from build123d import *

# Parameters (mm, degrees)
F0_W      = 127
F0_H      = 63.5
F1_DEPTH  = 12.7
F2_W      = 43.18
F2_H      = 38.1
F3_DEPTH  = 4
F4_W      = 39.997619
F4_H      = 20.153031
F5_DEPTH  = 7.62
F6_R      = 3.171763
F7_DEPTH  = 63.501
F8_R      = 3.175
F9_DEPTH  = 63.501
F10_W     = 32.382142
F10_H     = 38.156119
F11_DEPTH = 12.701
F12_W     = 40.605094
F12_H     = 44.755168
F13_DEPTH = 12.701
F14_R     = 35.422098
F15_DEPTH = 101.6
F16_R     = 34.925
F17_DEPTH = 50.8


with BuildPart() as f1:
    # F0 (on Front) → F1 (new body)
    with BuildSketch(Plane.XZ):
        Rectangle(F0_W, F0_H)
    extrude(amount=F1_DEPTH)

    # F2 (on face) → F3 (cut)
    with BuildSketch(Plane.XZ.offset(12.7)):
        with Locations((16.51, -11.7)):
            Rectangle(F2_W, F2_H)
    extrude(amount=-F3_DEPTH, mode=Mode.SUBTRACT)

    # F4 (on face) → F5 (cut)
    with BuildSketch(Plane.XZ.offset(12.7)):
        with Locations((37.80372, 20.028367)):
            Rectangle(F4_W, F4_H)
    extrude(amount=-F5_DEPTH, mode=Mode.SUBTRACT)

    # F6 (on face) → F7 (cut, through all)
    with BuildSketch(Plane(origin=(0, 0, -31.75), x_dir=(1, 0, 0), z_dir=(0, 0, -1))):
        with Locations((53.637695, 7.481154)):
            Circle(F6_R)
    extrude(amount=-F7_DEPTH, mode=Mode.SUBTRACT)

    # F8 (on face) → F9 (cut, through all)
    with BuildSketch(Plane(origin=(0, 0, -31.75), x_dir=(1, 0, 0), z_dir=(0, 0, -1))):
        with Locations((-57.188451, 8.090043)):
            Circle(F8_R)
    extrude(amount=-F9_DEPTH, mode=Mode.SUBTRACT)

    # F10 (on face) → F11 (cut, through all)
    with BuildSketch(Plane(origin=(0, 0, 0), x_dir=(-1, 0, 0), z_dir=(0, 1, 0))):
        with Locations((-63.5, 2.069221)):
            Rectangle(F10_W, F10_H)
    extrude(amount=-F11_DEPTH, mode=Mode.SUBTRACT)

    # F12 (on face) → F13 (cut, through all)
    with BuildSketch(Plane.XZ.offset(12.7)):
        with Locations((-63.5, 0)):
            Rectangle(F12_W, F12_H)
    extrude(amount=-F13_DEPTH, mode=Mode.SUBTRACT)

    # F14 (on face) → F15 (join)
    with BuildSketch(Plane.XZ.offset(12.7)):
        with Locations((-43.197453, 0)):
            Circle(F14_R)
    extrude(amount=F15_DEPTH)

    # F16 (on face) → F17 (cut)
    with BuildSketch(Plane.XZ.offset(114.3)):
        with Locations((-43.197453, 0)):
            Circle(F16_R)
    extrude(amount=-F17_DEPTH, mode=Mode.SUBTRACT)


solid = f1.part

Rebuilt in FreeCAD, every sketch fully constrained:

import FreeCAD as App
import Part
import Sketcher

V = App.Vector
Q = App.Units.Quantity


def add_polygon(sketch, points):
    """Adds a closed chain of lines whose ends are joined by coincident constraints."""
    first, n = sketch.GeometryCount, len(points)
    for a, b in zip(points, points[1:] + points[:1]):
        sketch.addGeometry(Part.LineSegment(App.Vector(*a, 0), App.Vector(*b, 0)), False)
    for i in range(n):
        sketch.addConstraint(Sketcher.Constraint("Coincident", first + i, 2, first + (i + 1) % n, 1))

doc = App.newDocument("Part")
body = doc.addObject("PartDesign::Body", "Body")

# Sketch on XZ plane
sketch1 = body.newObject("Sketcher::SketchObject", "Sketch")
sketch1.AttachmentSupport = (doc.getObject("XZ_Plane"), [""])
sketch1.MapMode = "FlatFace"
add_polygon(sketch1, [(-64, 32), (-64, -32), (64, -32), (64, 32)])  # lines 0-3
sketch1.addConstraint([
    Sketcher.Constraint("Vertical", 0),
    Sketcher.Constraint("Horizontal", 1),
    Sketcher.Constraint("Vertical", 2),
    Sketcher.Constraint("Horizontal", 3),
    Sketcher.Constraint("Symmetric", 0, 2, 2, 2, -1, 1),
    Sketcher.Constraint("DistanceX", 1, 1, 1, 2, Q("5 in")),
    Sketcher.Constraint("DistanceY", 0, 2, 0, 1, Q("2.5 in")),
])
pad1 = body.newObject("PartDesign::Pad", "Pad")
pad1.Profile = sketch1
pad1.Length = Q("0.5 in")

# Sketch on XZ plane
sketch2 = body.newObject("Sketcher::SketchObject", "Sketch001")
sketch2.AttachmentSupport = (doc.getObject("XZ_Plane"), [""])
sketch2.MapMode = "FlatFace"
sketch2.AttachmentOffset = App.Placement(V(0, 0, 0.5 * 25.4), App.Rotation())
add_polygon(sketch2, [(-5, 7), (-5, -31), (38, -31), (38, 7)])  # lines 0-3
sketch2.addConstraint([
    Sketcher.Constraint("Vertical", 0),
    Sketcher.Constraint("Horizontal", 1),
    Sketcher.Constraint("Vertical", 2),
    Sketcher.Constraint("Horizontal", 3),
    Sketcher.Constraint("DistanceX", 1, 1, 1, 2, Q("1.7 in")),
    Sketcher.Constraint("DistanceY", 0, 2, 0, 1, Q("1.5 in")),
    Sketcher.Constraint("DistanceX", 0, 2, -1, 1, Q("0.2 in")),
    Sketcher.Constraint("DistanceY", 0, 2, -1, 1, 30.75),
])
pocket1 = body.newObject("PartDesign::Pocket", "Pocket")
pocket1.Profile = sketch2
pocket1.Length = 4

# Sketch on XZ plane
sketch3 = body.newObject("Sketcher::SketchObject", "Sketch002")
sketch3.AttachmentSupport = (doc.getObject("XZ_Plane"), [""])
sketch3.MapMode = "FlatFace"
sketch3.AttachmentOffset = App.Placement(V(0, 0, 0.5 * 25.4), App.Rotation())
add_polygon(sketch3, [(18, 30), (18, 10), (58, 10), (58, 30)])  # lines 0-3
sketch3.addConstraint([
    Sketcher.Constraint("Vertical", 0),
    Sketcher.Constraint("Horizontal", 1),
    Sketcher.Constraint("Vertical", 2),
    Sketcher.Constraint("Horizontal", 3),
    Sketcher.Constraint("DistanceX", 1, 1, 1, 2, 39.997619),
    Sketcher.Constraint("DistanceY", 0, 2, 0, 1, 20.153031),
    Sketcher.Constraint("DistanceX", -1, 1, 0, 2, 17.80491),
    Sketcher.Constraint("DistanceY", -1, 1, 0, 2, 9.951852),
])
pocket2 = body.newObject("PartDesign::Pocket", "Pocket001")
pocket2.Profile = sketch3
pocket2.Length = Q("0.3 in")

# Sketch on XY plane
sketch4 = body.newObject("Sketcher::SketchObject", "Sketch003")
sketch4.AttachmentSupport = (doc.getObject("XY_Plane"), [""])
sketch4.MapMode = "FlatFace"
sketch4.AttachmentOffset = App.Placement(V(0, 0, -1.25 * 25.4), App.Rotation())
sketch4.addGeometry(Part.Circle(V(53.6, -7.5, 0), V(0, 0, 1), 3.2), False)
sketch4.addConstraint([
    Sketcher.Constraint("Diameter", 0, 6.343526),
    Sketcher.Constraint("DistanceX", -1, 1, 0, 3, 53.637695),
    Sketcher.Constraint("DistanceY", 0, 3, -1, 1, 7.481154),
])
pocket3 = body.newObject("PartDesign::Pocket", "Pocket002")
pocket3.Profile = sketch4
pocket3.Type = "ThroughAll"
pocket3.Reversed = True

# Sketch on XY plane
sketch5 = body.newObject("Sketcher::SketchObject", "Sketch004")
sketch5.AttachmentSupport = (doc.getObject("XY_Plane"), [""])
sketch5.MapMode = "FlatFace"
sketch5.AttachmentOffset = App.Placement(V(0, 0, -1.25 * 25.4), App.Rotation())
sketch5.addGeometry(Part.Circle(V(-57.2, -8.1, 0), V(0, 0, 1), 3.2), False)
sketch5.addConstraint([
    Sketcher.Constraint("Diameter", 0, Q("0.25 in")),
    Sketcher.Constraint("DistanceX", 0, 3, -1, 1, 57.188451),
    Sketcher.Constraint("DistanceY", 0, 3, -1, 1, 8.090043),
])
pocket4 = body.newObject("PartDesign::Pocket", "Pocket003")
pocket4.Profile = sketch5
pocket4.Type = "ThroughAll"
pocket4.Reversed = True

# Sketch on XZ plane
sketch6 = body.newObject("Sketcher::SketchObject", "Sketch005")
sketch6.AttachmentSupport = (doc.getObject("XZ_Plane"), [""])
sketch6.MapMode = "FlatFace"
add_polygon(sketch6, [(80, 21), (80, -17), (47, -17), (47, 21)])  # lines 0-3
sketch6.addConstraint([
    Sketcher.Constraint("Vertical", 0),
    Sketcher.Constraint("Horizontal", 1),
    Sketcher.Constraint("Vertical", 2),
    Sketcher.Constraint("Horizontal", 3),
    Sketcher.Constraint("DistanceX", 1, 2, 1, 1, 32.382142),
    Sketcher.Constraint("DistanceY", 0, 2, 0, 1, 38.156119),
    Sketcher.Constraint("DistanceX", -1, 1, 0, 2, 79.691071),
    Sketcher.Constraint("DistanceY", 0, 2, -1, 1, 17.008838),
])
pocket5 = body.newObject("PartDesign::Pocket", "Pocket004")
pocket5.Profile = sketch6
pocket5.Type = "ThroughAll"
pocket5.Reversed = True

# Sketch on XZ plane
sketch7 = body.newObject("Sketcher::SketchObject", "Sketch006")
sketch7.AttachmentSupport = (doc.getObject("XZ_Plane"), [""])
sketch7.MapMode = "FlatFace"
sketch7.AttachmentOffset = App.Placement(V(0, 0, 0.5 * 25.4), App.Rotation())
add_polygon(sketch7, [(-84, 22), (-84, -22), (-43, -22), (-43, 22)])  # lines 0-3
sketch7.addConstraint([
    Sketcher.Constraint("Vertical", 0),
    Sketcher.Constraint("Horizontal", 1),
    Sketcher.Constraint("Vertical", 2),
    Sketcher.Constraint("Horizontal", 3),
    Sketcher.Constraint("DistanceX", 1, 1, 1, 2, 40.605094),
    Sketcher.Constraint("DistanceY", 0, 2, 0, 1, 44.755168),
    Sketcher.Constraint("DistanceX", 0, 2, -1, 1, 83.802547),
    Sketcher.Constraint("DistanceY", 0, 2, -1, 1, 22.377584),
])
pocket6 = body.newObject("PartDesign::Pocket", "Pocket005")
pocket6.Profile = sketch7
pocket6.Type = "ThroughAll"

# Sketch on XZ plane
sketch8 = body.newObject("Sketcher::SketchObject", "Sketch007")
sketch8.AttachmentSupport = (doc.getObject("XZ_Plane"), [""])
sketch8.MapMode = "FlatFace"
sketch8.AttachmentOffset = App.Placement(V(0, 0, 0.5 * 25.4), App.Rotation())
sketch8.addGeometry(Part.Circle(V(-43, 0, 0), V(0, 0, 1), 35), False)
sketch8.addConstraint([
    Sketcher.Constraint("PointOnObject", 0, 3, -1),
    Sketcher.Constraint("Diameter", 0, 70.844196),
    Sketcher.Constraint("DistanceX", 0, 3, -1, 1, 43.197453),
])
pad2 = body.newObject("PartDesign::Pad", "Pad001")
pad2.Profile = sketch8
pad2.Length = Q("4 in")

# Sketch on XZ plane
sketch9 = body.newObject("Sketcher::SketchObject", "Sketch008")
sketch9.AttachmentSupport = (doc.getObject("XZ_Plane"), [""])
sketch9.MapMode = "FlatFace"
sketch9.AttachmentOffset = App.Placement(V(0, 0, 4.5 * 25.4), App.Rotation())
sketch9.addGeometry(Part.Circle(V(-43, 0, 0), V(0, 0, 1), 35), False)
sketch9.addConstraint([
    Sketcher.Constraint("PointOnObject", 0, 3, -1),
    Sketcher.Constraint("Diameter", 0, Q("2.75 in")),
    Sketcher.Constraint("DistanceX", 0, 3, -1, 1, 43.197453),
])
pocket7 = body.newObject("PartDesign::Pocket", "Pocket006")
pocket7.Profile = sketch9
pocket7.Length = Q("2 in")

doc.recompute()
